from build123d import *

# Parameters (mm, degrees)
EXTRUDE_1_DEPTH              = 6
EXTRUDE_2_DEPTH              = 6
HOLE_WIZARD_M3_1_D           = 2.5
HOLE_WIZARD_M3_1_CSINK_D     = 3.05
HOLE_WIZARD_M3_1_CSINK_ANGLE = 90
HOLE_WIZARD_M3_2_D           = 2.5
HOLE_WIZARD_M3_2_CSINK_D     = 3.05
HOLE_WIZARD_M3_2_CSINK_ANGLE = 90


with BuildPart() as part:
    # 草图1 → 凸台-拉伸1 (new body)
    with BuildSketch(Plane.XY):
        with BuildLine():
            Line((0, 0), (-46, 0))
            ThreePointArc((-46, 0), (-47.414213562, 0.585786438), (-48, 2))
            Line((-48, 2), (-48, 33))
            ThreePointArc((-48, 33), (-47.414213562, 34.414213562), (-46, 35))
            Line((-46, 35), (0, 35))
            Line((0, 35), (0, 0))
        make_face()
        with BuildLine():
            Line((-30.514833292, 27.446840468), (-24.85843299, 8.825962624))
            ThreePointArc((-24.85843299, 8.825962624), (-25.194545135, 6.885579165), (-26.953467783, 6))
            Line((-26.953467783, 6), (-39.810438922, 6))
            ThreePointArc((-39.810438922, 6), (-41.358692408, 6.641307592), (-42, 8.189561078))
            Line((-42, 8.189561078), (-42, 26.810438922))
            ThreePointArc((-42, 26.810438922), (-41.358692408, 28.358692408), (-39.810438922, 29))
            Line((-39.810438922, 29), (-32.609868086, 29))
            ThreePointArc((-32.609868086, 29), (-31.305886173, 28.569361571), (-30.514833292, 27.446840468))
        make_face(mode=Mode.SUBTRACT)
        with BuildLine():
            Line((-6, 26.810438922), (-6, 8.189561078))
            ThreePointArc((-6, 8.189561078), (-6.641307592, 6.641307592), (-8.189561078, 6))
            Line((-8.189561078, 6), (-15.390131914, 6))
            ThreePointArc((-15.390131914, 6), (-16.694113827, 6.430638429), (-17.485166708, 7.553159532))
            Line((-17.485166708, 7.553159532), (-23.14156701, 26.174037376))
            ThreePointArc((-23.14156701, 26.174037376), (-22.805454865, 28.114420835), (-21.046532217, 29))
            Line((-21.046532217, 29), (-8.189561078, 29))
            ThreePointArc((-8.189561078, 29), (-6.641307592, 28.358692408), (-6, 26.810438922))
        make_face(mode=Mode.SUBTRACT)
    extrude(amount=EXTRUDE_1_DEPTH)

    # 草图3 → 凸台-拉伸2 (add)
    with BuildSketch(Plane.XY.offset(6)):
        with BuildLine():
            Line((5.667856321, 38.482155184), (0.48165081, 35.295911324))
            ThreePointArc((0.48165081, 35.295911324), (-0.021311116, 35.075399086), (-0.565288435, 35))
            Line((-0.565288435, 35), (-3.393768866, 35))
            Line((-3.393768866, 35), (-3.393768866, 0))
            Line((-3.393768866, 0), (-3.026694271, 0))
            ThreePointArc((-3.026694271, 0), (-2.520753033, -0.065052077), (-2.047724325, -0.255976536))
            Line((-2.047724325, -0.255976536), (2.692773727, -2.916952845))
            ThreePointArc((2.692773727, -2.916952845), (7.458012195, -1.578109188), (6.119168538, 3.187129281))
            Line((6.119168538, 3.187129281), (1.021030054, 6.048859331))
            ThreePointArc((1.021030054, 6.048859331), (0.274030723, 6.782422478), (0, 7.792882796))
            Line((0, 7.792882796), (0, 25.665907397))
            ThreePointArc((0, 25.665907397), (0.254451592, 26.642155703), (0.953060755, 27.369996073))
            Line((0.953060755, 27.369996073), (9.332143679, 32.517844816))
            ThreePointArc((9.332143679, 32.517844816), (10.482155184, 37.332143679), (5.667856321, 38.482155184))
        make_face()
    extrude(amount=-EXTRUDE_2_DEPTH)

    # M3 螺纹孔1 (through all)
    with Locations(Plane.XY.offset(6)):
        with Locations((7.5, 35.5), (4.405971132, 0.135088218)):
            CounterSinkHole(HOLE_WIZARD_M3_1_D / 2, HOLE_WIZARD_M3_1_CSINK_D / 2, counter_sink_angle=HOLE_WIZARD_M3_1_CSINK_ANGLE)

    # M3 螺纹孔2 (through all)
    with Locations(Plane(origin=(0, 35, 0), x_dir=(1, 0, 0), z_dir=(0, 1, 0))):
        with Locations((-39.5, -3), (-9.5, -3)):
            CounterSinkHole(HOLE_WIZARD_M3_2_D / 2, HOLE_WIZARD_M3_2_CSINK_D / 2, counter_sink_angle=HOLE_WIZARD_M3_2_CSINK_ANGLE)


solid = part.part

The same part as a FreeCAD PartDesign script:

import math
import FreeCAD as App
import Part
import Sketcher

doc = App.newDocument("Part")
body = doc.addObject("PartDesign::Body", "Body")

# Sketch on XY plane
sketch1 = body.newObject("Sketcher::SketchObject", "Sketch")
sketch1.AttachmentSupport = (doc.getObject("XY_Plane"), [""])
sketch1.MapMode = "FlatFace"
sketch1.addGeometry(Part.LineSegment(App.Vector(-46, 0, 0), App.Vector(0, 0, 0)), False)
sketch1.addGeometry(Part.LineSegment(App.Vector(0, 0, 0), App.Vector(0, 35, 0)), False)
sketch1.addGeometry(Part.LineSegment(App.Vector(0, 35, 0), App.Vector(-46, 35, 0)), False)
sketch1.addGeometry(Part.ArcOfCircle(Part.Circle(App.Vector(-46, 33, 0), App.Vector(0, 0, 1), 2), math.radians(90), math.radians(180)), False)
sketch1.addGeometry(Part.LineSegment(App.Vector(-48, 33, 0), App.Vector(-48, 2, 0)), False)
sketch1.addGeometry(Part.ArcOfCircle(Part.Circle(App.Vector(-46, 2, 0), App.Vector(0, 0, 1), 2), math.radians(-180), math.radians(-90)), False)
sketch1.addGeometry(Part.LineSegment(App.Vector(-6, 26.8, 0), App.Vector(-6, 8.2, 0)), False)
sketch1.addGeometry(Part.ArcOfCircle(Part.Circle(App.Vector(-8.2, 8.2, 0), App.Vector(0, 0, 1), 2.2), math.radians(-90), math.radians(0)), False)
sketch1.addGeometry(Part.LineSegment(App.Vector(-8.2, 6, 0), App.Vector(-15.4, 6, 0)), False)
sketch1.addGeometry(Part.ArcOfCircle(Part.Circle(App.Vector(-15.4, 8.2, 0), App.Vector(0, 0, 1), 2.2), math.radians(-163), math.radians(-90)), False)
sketch1.addGeometry(Part.LineSegment(App.Vector(-17.5, 7.6, 0), App.Vector(-23.1, 26.2, 0)), False)
sketch1.addGeometry(Part.ArcOfCircle(Part.Circle(App.Vector(-21, 26.8, 0), App.Vector(0, 0, 1), 2.2), math.radians(90), math.radians(197)), False)
sketch1.addGeometry(Part.LineSegment(App.Vector(-21, 29, 0), App.Vector(-8.2, 29, 0)), False)
sketch1.addGeometry(Part.ArcOfCircle(Part.Circle(App.Vector(-8.2, 26.8, 0), App.Vector(0, 0, 1), 2.2), math.radians(0), math.radians(90)), False)
sketch1.addGeometry(Part.LineSegment(App.Vector(-30.5, 27.4, 0), App.Vector(-24.9, 8.8, 0)), False)
sketch1.addGeometry(Part.ArcOfCircle(Part.Circle(App.Vector(-27, 8.2, 0), App.Vector(0, 0, 1), 2.2), math.radians(-90), math.radians(17)), False)
sketch1.addGeometry(Part.LineSegment(App.Vector(-27, 6, 0), App.Vector(-39.8, 6, 0)), False)
sketch1.addGeometry(Part.ArcOfCircle(Part.Circle(App.Vector(-39.8, 8.2, 0), App.Vector(0, 0, 1), 2.2), math.radians(180), math.radians(270)), False)
sketch1.addGeometry(Part.LineSegment(App.Vector(-42, 8.2, 0), App.Vector(-42, 26.8, 0)), False)
sketch1.addGeometry(Part.ArcOfCircle(Part.Circle(App.Vector(-39.8, 26.8, 0), App.Vector(0, 0, 1), 2.2), math.radians(90), math.radians(180)), False)
sketch1.addGeometry(Part.LineSegment(App.Vector(-39.8, 29, 0), App.Vector(-32.6, 29, 0)), False)
sketch1.addGeometry(Part.ArcOfCircle(Part.Circle(App.Vector(-32.6, 26.8, 0), App.Vector(0, 0, 1), 2.2), math.radians(17), math.radians(90)), False)
sketch1.addConstraint(Sketcher.Constraint("Coincident", 0, 2, 1, 1))
sketch1.addConstraint(Sketcher.Constraint("Coincident", 1, 2, 2, 1))
sketch1.addConstraint(Sketcher.Constraint("Tangent", 2, 2, 3, 1))
sketch1.addConstraint(Sketcher.Constraint("Tangent", 3, 2, 4, 1))
sketch1.addConstraint(Sketcher.Constraint("Tangent", 4, 2, 5, 1))
sketch1.addConstraint(Sketcher.Constraint("Tangent", 5, 2, 0, 1))
sketch1.addConstraint(Sketcher.Constraint("Tangent", 6, 2, 7, 2))
sketch1.addConstraint(Sketcher.Constraint("Tangent", 7, 1, 8, 1))
sketch1.addConstraint(Sketcher.Constraint("Tangent", 8, 2, 9, 2))
sketch1.addConstraint(Sketcher.Constraint("Tangent", 9, 1, 10, 1))
sketch1.addConstraint(Sketcher.Constraint("Tangent", 10, 2, 11, 2))
sketch1.addConstraint(Sketcher.Constraint("Tangent", 11, 1, 12, 1))
sketch1.addConstraint(Sketcher.Constraint("Tangent", 12, 2, 13, 2))
sketch1.addConstraint(Sketcher.Constraint("Tangent", 13, 1, 6, 1))
sketch1.addConstraint(Sketcher.Constraint("Tangent", 14, 2, 15, 2))
sketch1.addConstraint(Sketcher.Constraint("Tangent", 15, 1, 16, 1))
sketch1.addConstraint(Sketcher.Constraint("Tangent", 16, 2, 17, 2))
sketch1.addConstraint(Sketcher.Constraint("Tangent", 17, 1, 18, 1))
sketch1.addConstraint(Sketcher.Constraint("Tangent", 18, 2, 19, 2))
sketch1.addConstraint(Sketcher.Constraint("Tangent", 19, 1, 20, 1))
sketch1.addConstraint(Sketcher.Constraint("Tangent", 20, 2, 21, 2))
sketch1.addConstraint(Sketcher.Constraint("Tangent", 21, 1, 14, 1))
sketch1.addConstraint(Sketcher.Constraint("Horizontal", 0))
sketch1.addConstraint(Sketcher.Constraint("Vertical", 1))
sketch1.addConstraint(Sketcher.Constraint("Horizontal", 2))
sketch1.addConstraint(Sketcher.Constraint("Vertical", 4))
sketch1.addConstraint(Sketcher.Constraint("Vertical", 6))
sketch1.addConstraint(Sketcher.Constraint("Horizontal", 8))
sketch1.addConstraint(Sketcher.Constraint("Horizontal", 12))
sketch1.addConstraint(Sketcher.Constraint("Horizontal", 16))
sketch1.addConstraint(Sketcher.Constraint("Vertical", 18))
sketch1.addConstraint(Sketcher.Constraint("Horizontal", 20))
sketch1.addConstraint(Sketcher.Constraint("Coincident", 0, 2, -1, 1))
sketch1.addConstraint(Sketcher.Constraint("Equal", 3, 5))
sketch1.addConstraint(Sketcher.Constraint("Equal", 7, 9))
sketch1.addConstraint(Sketcher.Constraint("Equal", 9, 11))
sketch1.addConstraint(Sketcher.Constraint("Equal", 11, 13))
sketch1.addConstraint(Sketcher.Constraint("Equal", 13, 15))
sketch1.addConstraint(Sketcher.Constraint("Equal", 15, 17))
sketch1.addConstraint(Sketcher.Constraint("Equal", 17, 19))
sketch1.addConstraint(Sketcher.Constraint("Equal", 19, 21))
sketch1.addConstraint(Sketcher.Constraint("Parallel", 10, 14))
sketch1.addConstraint(Sketcher.Constraint("Horizontal", 9, 3, 15, 3))
sketch1.addConstraint(Sketcher.Constraint("Horizontal", 13, 3, 19, 3))
sketch1.addConstraint(Sketcher.Constraint("Equal", 12, 16))
sketch1.addConstraint(Sketcher.Constraint("Radius", 3, 2.0))
sketch1.addConstraint(Sketcher.Constraint("DistanceX", 0, 1, 0, 2, 46.0))
sketch1.addConstraint(Sketcher.Constraint("DistanceY", 1, 1, 1, 2, 35.0))
sketch1.addConstraint(Sketcher.Constraint("DistanceX", 6, 2, -1, 1, 6.0))
sketch1.addConstraint(Sketcher.Constraint("DistanceY", -1, 1, 7, 1, 6.0))
sketch1.addConstraint(Sketcher.Constraint("DistanceY", -1, 1, 11, 1, 29.0))
sketch1.addConstraint(Sketcher.Constraint("DistanceX", 17, 1, -1, 1, 42.0))
sketch1.addConstraint(Sketcher.Constraint("Radius", 7, 2.189561))
sketch1.addConstraint(Sketcher.Constraint("DistanceX", 8, 2, 8, 1, 7.200571))
sketch1.addConstraint(Sketcher.Constraint("DistanceX", 12, 1, 12, 2, 12.856971))
pad1 = body.newObject("PartDesign::Pad", "Pad")
pad1.Profile = sketch1
pad1.Length = 6

# Sketch on XY plane
sketch2 = body.newObject("Sketcher::SketchObject", "Sketch001")
sketch2.AttachmentSupport = (doc.getObject("XY_Plane"), [""])
sketch2.MapMode = "FlatFace"
sketch2.AttachmentOffset = App.Placement(App.Vector(0, 0, 6), App.Rotation())
sketch2.addGeometry(Part.LineSegment(App.Vector(5.67, 38.48, 0), App.Vector(0.48, 35.3, 0)), False)
sketch2.addGeometry(Part.ArcOfCircle(Part.Circle(App.Vector(-0.57, 37, 0), App.Vector(0, 0, 1), 2), math.radians(-90), math.radians(-58)), False)
sketch2.addGeometry(Part.LineSegment(App.Vector(-0.57, 35, 0), App.Vector(-3.39, 35, 0)), False)
sketch2.addGeometry(Part.LineSegment(App.Vector(-3.39, 35, 0), App.Vector(-3.39, 0, 0)), False)
sketch2.addGeometry(Part.LineSegment(App.Vector(-3.39, 0, 0), App.Vector(-3.03, 0, 0)), False)
sketch2.addGeometry(Part.ArcOfCircle(Part.Circle(App.Vector(-3.03, -2, 0), App.Vector(0, 0, 1), 2), math.radians(61), math.radians(90)), False)
sketch2.addGeometry(Part.LineSegment(App.Vector(-2.05, -0.26, 0), App.Vector(2.69, -2.92, 0)), False)
sketch2.addGeometry(Part.ArcOfCircle(Part.Circle(App.Vector(4.41, 0.14, 0), App.Vector(0, 0, 1), 3.5), math.radians(-119), math.radians(61)), False)
sketch2.addGeometry(Part.LineSegment(App.Vector(6.12, 3.19, 0), App.Vector(1.02, 6.05, 0)), False)
sketch2.addGeometry(Part.ArcOfCircle(Part.Circle(App.Vector(2, 7.79, 0), App.Vector(0, 0, 1), 2), math.radians(-180), math.radians(-119)), False)
sketch2.addGeometry(Part.LineSegment(App.Vector(0, 7.79, 0), App.Vector(0, 25.67, 0)), False)
sketch2.addGeometry(Part.ArcOfCircle(Part.Circle(App.Vector(2, 25.67, 0), App.Vector(0, 0, 1), 2), math.radians(122), math.radians(180)), False)
sketch2.addGeometry(Part.LineSegment(App.Vector(0.95, 27.37, 0), App.Vector(9.33, 32.52, 0)), False)
sketch2.addGeometry(Part.ArcOfCircle(Part.Circle(App.Vector(7.5, 35.5, 0), App.Vector(0, 0, 1), 3.5), math.radians(-58), math.radians(122)), False)
sketch2.addConstraint(Sketcher.Constraint("Tangent", 0, 2, 1, 2))
sketch2.addConstraint(Sketcher.Constraint("Tangent", 1, 1, 2, 1))
sketch2.addConstraint(Sketcher.Constraint("Coincident", 2, 2, 3, 1))
sketch2.addConstraint(Sketcher.Constraint("Coincident", 3, 2, 4, 1))
sketch2.addConstraint(Sketcher.Constraint("Tangent", 4, 2, 5, 2))
sketch2.addConstraint(Sketcher.Constraint("Tangent", 5, 1, 6, 1))
sketch2.addConstraint(Sketcher.Constraint("Tangent", 6, 2, 7, 1))
sketch2.addConstraint(Sketcher.Constraint("Tangent", 7, 2, 8, 1))
sketch2.addConstraint(Sketcher.Constraint("Tangent", 8, 2, 9, 2))
sketch2.addConstraint(Sketcher.Constraint("Tangent", 9, 1, 10, 1))
sketch2.addConstraint(Sketcher.Constraint("Tangent", 10, 2, 11, 2))
sketch2.addConstraint(Sketcher.Constraint("Tangent", 11, 1, 12, 1))
sketch2.addConstraint(Sketcher.Constraint("Tangent", 12, 2, 13, 1))
sketch2.addConstraint(Sketcher.Constraint("Tangent", 13, 2, 0, 1))
sketch2.addConstraint(Sketcher.Constraint("Horizontal", 2))
sketch2.addConstraint(Sketcher.Constraint("Vertical", 3))
sketch2.addConstraint(Sketcher.Constraint("Horizontal", 4))
sketch2.addConstraint(Sketcher.Constraint("Vertical", 10))
sketch2.addConstraint(Sketcher.Constraint("Equal", 1, 5))
sketch2.addConstraint(Sketcher.Constraint("Equal", 5, 9))
sketch2.addConstraint(Sketcher.Constraint("Equal", 9, 11))
sketch2.addConstraint(Sketcher.Constraint("Equal", 7, 13))
sketch2.addConstraint(Sketcher.Constraint("PointOnObject", 3, 2, -1))
sketch2.addConstraint(Sketcher.Constraint("PointOnObject", 9, 1, -2))
sketch2.addConstraint(Sketcher.Constraint("Parallel", 6, 8))
sketch2.addConstraint(Sketcher.Constraint("Parallel", 0, 12))
sketch2.addConstraint(Sketcher.Constraint("Radius", 1, 2.0))
sketch2.addConstraint(Sketcher.Constraint("Radius", 7, 3.5))
sketch2.addConstraint(Sketcher.Constraint("DistanceY", 3, 2, 3, 1, 35.0))
sketch2.addConstraint(Sketcher.Constraint("DistanceX", -1, 1, 13, 3, 7.5))
sketch2.addConstraint(Sketcher.Constraint("DistanceY", -1, 1, 13, 3, 35.5))
sketch2.addConstraint(Sketcher.Constraint("DistanceX", 2, 2, 2, 1, 2.82848))
sketch2.addConstraint(Sketcher.Constraint("DistanceX", 5, 1, 6, 2, 4.740498))
sketch2.addConstraint(Sketcher.Constraint("Distance", 0, 6.086779))
sketch2.addConstraint(Sketcher.Constraint("Distance", 8, 5.84641))
sketch2.addConstraint(Sketcher.Constraint("DistanceX", 4, 1, 4, 2, 0.367075))
pad2 = body.newObject("PartDesign::Pad", "Pad001")
pad2.Profile = sketch2
pad2.Length = 6
pad2.Reversed = True

# Sketch on XY plane
sketch3 = body.newObject("Sketcher::SketchObject", "Sketch002")
sketch3.AttachmentSupport = (doc.getObject("XY_Plane"), [""])
sketch3.MapMode = "FlatFace"
sketch3.AttachmentOffset = App.Placement(App.Vector(0, 0, 6), App.Rotation())
sketch3.addGeometry(Part.Circle(App.Vector(7.5, 35.5, 0), App.Vector(0, 0, 1), 1.2), False)
sketch3.addGeometry(Part.Circle(App.Vector(4.4, 0.1, 0), App.Vector(0, 0, 1), 1.2), False)
sketch3.addConstraint(Sketcher.Constraint("Equal", 0, 1))
sketch3.addConstraint(Sketcher.Constraint("Diameter", 0, 2.5))
sketch3.addConstraint(Sketcher.Constraint("DistanceX", -1, 1, 0, 3, 7.5))
sketch3.addConstraint(Sketcher.Constraint("DistanceY", -1, 1, 0, 3, 35.5))
sketch3.addConstraint(Sketcher.Constraint("DistanceX", -1, 1, 1, 3, 4.405971))
sketch3.addConstraint(Sketcher.Constraint("DistanceY", -1, 1, 1, 3, 0.135088))
doc.recompute()
hole = body.newObject("PartDesign::Hole", "Hole")
hole.Profile = sketch3
hole.ThreadType = "None"
hole.Diameter = 2.5
hole.DepthType = "ThroughAll"
hole.HoleCutType = "Countersink"
hole.HoleCutDiameter = 3.05
hole.HoleCutCountersinkAngle = 90

# Sketch on XZ plane
sketch4 = body.newObject("Sketcher::SketchObject", "Sketch003")
sketch4.AttachmentSupport = (doc.getObject("XZ_Plane"), [""])
sketch4.MapMode = "FlatFace"
sketch4.AttachmentOffset = App.Placement(App.Vector(0, 0, -35), App.Rotation())
sketch4.addGeometry(Part.Circle(App.Vector(-39.5, 3, 0), App.Vector(0, 0, 1), 1.2), False)
sketch4.addGeometry(Part.Circle(App.Vector(-9.5, 3, 0), App.Vector(0, 0, 1), 1.2), False)
sketch4.addConstraint(Sketcher.Constraint("Equal", 0, 1))
sketch4.addConstraint(Sketcher.Constraint("Horizontal", 0, 3, 1, 3))
sketch4.addConstraint(Sketcher.Constraint("Diameter", 0, 2.5))
sketch4.addConstraint(Sketcher.Constraint("DistanceY", -1, 1, 0, 3, 3.0))
sketch4.addConstraint(Sketcher.Constraint("DistanceX", 0, 3, 1, 3, 30.0))
sketch4.addConstraint(Sketcher.Constraint("DistanceX", 0, 3, -1, 1, 39.5))
doc.recompute()
hole2 = body.newObject("PartDesign::Hole", "Hole001")
hole2.Profile = sketch4
hole2.ThreadType = "None"
hole2.Diameter = 2.5
hole2.DepthType = "ThroughAll"
hole2.HoleCutType = "Countersink"
hole2.HoleCutDiameter = 3.05
hole2.HoleCutCountersinkAngle = 90
hole2.Reversed = True

doc.recompute()
